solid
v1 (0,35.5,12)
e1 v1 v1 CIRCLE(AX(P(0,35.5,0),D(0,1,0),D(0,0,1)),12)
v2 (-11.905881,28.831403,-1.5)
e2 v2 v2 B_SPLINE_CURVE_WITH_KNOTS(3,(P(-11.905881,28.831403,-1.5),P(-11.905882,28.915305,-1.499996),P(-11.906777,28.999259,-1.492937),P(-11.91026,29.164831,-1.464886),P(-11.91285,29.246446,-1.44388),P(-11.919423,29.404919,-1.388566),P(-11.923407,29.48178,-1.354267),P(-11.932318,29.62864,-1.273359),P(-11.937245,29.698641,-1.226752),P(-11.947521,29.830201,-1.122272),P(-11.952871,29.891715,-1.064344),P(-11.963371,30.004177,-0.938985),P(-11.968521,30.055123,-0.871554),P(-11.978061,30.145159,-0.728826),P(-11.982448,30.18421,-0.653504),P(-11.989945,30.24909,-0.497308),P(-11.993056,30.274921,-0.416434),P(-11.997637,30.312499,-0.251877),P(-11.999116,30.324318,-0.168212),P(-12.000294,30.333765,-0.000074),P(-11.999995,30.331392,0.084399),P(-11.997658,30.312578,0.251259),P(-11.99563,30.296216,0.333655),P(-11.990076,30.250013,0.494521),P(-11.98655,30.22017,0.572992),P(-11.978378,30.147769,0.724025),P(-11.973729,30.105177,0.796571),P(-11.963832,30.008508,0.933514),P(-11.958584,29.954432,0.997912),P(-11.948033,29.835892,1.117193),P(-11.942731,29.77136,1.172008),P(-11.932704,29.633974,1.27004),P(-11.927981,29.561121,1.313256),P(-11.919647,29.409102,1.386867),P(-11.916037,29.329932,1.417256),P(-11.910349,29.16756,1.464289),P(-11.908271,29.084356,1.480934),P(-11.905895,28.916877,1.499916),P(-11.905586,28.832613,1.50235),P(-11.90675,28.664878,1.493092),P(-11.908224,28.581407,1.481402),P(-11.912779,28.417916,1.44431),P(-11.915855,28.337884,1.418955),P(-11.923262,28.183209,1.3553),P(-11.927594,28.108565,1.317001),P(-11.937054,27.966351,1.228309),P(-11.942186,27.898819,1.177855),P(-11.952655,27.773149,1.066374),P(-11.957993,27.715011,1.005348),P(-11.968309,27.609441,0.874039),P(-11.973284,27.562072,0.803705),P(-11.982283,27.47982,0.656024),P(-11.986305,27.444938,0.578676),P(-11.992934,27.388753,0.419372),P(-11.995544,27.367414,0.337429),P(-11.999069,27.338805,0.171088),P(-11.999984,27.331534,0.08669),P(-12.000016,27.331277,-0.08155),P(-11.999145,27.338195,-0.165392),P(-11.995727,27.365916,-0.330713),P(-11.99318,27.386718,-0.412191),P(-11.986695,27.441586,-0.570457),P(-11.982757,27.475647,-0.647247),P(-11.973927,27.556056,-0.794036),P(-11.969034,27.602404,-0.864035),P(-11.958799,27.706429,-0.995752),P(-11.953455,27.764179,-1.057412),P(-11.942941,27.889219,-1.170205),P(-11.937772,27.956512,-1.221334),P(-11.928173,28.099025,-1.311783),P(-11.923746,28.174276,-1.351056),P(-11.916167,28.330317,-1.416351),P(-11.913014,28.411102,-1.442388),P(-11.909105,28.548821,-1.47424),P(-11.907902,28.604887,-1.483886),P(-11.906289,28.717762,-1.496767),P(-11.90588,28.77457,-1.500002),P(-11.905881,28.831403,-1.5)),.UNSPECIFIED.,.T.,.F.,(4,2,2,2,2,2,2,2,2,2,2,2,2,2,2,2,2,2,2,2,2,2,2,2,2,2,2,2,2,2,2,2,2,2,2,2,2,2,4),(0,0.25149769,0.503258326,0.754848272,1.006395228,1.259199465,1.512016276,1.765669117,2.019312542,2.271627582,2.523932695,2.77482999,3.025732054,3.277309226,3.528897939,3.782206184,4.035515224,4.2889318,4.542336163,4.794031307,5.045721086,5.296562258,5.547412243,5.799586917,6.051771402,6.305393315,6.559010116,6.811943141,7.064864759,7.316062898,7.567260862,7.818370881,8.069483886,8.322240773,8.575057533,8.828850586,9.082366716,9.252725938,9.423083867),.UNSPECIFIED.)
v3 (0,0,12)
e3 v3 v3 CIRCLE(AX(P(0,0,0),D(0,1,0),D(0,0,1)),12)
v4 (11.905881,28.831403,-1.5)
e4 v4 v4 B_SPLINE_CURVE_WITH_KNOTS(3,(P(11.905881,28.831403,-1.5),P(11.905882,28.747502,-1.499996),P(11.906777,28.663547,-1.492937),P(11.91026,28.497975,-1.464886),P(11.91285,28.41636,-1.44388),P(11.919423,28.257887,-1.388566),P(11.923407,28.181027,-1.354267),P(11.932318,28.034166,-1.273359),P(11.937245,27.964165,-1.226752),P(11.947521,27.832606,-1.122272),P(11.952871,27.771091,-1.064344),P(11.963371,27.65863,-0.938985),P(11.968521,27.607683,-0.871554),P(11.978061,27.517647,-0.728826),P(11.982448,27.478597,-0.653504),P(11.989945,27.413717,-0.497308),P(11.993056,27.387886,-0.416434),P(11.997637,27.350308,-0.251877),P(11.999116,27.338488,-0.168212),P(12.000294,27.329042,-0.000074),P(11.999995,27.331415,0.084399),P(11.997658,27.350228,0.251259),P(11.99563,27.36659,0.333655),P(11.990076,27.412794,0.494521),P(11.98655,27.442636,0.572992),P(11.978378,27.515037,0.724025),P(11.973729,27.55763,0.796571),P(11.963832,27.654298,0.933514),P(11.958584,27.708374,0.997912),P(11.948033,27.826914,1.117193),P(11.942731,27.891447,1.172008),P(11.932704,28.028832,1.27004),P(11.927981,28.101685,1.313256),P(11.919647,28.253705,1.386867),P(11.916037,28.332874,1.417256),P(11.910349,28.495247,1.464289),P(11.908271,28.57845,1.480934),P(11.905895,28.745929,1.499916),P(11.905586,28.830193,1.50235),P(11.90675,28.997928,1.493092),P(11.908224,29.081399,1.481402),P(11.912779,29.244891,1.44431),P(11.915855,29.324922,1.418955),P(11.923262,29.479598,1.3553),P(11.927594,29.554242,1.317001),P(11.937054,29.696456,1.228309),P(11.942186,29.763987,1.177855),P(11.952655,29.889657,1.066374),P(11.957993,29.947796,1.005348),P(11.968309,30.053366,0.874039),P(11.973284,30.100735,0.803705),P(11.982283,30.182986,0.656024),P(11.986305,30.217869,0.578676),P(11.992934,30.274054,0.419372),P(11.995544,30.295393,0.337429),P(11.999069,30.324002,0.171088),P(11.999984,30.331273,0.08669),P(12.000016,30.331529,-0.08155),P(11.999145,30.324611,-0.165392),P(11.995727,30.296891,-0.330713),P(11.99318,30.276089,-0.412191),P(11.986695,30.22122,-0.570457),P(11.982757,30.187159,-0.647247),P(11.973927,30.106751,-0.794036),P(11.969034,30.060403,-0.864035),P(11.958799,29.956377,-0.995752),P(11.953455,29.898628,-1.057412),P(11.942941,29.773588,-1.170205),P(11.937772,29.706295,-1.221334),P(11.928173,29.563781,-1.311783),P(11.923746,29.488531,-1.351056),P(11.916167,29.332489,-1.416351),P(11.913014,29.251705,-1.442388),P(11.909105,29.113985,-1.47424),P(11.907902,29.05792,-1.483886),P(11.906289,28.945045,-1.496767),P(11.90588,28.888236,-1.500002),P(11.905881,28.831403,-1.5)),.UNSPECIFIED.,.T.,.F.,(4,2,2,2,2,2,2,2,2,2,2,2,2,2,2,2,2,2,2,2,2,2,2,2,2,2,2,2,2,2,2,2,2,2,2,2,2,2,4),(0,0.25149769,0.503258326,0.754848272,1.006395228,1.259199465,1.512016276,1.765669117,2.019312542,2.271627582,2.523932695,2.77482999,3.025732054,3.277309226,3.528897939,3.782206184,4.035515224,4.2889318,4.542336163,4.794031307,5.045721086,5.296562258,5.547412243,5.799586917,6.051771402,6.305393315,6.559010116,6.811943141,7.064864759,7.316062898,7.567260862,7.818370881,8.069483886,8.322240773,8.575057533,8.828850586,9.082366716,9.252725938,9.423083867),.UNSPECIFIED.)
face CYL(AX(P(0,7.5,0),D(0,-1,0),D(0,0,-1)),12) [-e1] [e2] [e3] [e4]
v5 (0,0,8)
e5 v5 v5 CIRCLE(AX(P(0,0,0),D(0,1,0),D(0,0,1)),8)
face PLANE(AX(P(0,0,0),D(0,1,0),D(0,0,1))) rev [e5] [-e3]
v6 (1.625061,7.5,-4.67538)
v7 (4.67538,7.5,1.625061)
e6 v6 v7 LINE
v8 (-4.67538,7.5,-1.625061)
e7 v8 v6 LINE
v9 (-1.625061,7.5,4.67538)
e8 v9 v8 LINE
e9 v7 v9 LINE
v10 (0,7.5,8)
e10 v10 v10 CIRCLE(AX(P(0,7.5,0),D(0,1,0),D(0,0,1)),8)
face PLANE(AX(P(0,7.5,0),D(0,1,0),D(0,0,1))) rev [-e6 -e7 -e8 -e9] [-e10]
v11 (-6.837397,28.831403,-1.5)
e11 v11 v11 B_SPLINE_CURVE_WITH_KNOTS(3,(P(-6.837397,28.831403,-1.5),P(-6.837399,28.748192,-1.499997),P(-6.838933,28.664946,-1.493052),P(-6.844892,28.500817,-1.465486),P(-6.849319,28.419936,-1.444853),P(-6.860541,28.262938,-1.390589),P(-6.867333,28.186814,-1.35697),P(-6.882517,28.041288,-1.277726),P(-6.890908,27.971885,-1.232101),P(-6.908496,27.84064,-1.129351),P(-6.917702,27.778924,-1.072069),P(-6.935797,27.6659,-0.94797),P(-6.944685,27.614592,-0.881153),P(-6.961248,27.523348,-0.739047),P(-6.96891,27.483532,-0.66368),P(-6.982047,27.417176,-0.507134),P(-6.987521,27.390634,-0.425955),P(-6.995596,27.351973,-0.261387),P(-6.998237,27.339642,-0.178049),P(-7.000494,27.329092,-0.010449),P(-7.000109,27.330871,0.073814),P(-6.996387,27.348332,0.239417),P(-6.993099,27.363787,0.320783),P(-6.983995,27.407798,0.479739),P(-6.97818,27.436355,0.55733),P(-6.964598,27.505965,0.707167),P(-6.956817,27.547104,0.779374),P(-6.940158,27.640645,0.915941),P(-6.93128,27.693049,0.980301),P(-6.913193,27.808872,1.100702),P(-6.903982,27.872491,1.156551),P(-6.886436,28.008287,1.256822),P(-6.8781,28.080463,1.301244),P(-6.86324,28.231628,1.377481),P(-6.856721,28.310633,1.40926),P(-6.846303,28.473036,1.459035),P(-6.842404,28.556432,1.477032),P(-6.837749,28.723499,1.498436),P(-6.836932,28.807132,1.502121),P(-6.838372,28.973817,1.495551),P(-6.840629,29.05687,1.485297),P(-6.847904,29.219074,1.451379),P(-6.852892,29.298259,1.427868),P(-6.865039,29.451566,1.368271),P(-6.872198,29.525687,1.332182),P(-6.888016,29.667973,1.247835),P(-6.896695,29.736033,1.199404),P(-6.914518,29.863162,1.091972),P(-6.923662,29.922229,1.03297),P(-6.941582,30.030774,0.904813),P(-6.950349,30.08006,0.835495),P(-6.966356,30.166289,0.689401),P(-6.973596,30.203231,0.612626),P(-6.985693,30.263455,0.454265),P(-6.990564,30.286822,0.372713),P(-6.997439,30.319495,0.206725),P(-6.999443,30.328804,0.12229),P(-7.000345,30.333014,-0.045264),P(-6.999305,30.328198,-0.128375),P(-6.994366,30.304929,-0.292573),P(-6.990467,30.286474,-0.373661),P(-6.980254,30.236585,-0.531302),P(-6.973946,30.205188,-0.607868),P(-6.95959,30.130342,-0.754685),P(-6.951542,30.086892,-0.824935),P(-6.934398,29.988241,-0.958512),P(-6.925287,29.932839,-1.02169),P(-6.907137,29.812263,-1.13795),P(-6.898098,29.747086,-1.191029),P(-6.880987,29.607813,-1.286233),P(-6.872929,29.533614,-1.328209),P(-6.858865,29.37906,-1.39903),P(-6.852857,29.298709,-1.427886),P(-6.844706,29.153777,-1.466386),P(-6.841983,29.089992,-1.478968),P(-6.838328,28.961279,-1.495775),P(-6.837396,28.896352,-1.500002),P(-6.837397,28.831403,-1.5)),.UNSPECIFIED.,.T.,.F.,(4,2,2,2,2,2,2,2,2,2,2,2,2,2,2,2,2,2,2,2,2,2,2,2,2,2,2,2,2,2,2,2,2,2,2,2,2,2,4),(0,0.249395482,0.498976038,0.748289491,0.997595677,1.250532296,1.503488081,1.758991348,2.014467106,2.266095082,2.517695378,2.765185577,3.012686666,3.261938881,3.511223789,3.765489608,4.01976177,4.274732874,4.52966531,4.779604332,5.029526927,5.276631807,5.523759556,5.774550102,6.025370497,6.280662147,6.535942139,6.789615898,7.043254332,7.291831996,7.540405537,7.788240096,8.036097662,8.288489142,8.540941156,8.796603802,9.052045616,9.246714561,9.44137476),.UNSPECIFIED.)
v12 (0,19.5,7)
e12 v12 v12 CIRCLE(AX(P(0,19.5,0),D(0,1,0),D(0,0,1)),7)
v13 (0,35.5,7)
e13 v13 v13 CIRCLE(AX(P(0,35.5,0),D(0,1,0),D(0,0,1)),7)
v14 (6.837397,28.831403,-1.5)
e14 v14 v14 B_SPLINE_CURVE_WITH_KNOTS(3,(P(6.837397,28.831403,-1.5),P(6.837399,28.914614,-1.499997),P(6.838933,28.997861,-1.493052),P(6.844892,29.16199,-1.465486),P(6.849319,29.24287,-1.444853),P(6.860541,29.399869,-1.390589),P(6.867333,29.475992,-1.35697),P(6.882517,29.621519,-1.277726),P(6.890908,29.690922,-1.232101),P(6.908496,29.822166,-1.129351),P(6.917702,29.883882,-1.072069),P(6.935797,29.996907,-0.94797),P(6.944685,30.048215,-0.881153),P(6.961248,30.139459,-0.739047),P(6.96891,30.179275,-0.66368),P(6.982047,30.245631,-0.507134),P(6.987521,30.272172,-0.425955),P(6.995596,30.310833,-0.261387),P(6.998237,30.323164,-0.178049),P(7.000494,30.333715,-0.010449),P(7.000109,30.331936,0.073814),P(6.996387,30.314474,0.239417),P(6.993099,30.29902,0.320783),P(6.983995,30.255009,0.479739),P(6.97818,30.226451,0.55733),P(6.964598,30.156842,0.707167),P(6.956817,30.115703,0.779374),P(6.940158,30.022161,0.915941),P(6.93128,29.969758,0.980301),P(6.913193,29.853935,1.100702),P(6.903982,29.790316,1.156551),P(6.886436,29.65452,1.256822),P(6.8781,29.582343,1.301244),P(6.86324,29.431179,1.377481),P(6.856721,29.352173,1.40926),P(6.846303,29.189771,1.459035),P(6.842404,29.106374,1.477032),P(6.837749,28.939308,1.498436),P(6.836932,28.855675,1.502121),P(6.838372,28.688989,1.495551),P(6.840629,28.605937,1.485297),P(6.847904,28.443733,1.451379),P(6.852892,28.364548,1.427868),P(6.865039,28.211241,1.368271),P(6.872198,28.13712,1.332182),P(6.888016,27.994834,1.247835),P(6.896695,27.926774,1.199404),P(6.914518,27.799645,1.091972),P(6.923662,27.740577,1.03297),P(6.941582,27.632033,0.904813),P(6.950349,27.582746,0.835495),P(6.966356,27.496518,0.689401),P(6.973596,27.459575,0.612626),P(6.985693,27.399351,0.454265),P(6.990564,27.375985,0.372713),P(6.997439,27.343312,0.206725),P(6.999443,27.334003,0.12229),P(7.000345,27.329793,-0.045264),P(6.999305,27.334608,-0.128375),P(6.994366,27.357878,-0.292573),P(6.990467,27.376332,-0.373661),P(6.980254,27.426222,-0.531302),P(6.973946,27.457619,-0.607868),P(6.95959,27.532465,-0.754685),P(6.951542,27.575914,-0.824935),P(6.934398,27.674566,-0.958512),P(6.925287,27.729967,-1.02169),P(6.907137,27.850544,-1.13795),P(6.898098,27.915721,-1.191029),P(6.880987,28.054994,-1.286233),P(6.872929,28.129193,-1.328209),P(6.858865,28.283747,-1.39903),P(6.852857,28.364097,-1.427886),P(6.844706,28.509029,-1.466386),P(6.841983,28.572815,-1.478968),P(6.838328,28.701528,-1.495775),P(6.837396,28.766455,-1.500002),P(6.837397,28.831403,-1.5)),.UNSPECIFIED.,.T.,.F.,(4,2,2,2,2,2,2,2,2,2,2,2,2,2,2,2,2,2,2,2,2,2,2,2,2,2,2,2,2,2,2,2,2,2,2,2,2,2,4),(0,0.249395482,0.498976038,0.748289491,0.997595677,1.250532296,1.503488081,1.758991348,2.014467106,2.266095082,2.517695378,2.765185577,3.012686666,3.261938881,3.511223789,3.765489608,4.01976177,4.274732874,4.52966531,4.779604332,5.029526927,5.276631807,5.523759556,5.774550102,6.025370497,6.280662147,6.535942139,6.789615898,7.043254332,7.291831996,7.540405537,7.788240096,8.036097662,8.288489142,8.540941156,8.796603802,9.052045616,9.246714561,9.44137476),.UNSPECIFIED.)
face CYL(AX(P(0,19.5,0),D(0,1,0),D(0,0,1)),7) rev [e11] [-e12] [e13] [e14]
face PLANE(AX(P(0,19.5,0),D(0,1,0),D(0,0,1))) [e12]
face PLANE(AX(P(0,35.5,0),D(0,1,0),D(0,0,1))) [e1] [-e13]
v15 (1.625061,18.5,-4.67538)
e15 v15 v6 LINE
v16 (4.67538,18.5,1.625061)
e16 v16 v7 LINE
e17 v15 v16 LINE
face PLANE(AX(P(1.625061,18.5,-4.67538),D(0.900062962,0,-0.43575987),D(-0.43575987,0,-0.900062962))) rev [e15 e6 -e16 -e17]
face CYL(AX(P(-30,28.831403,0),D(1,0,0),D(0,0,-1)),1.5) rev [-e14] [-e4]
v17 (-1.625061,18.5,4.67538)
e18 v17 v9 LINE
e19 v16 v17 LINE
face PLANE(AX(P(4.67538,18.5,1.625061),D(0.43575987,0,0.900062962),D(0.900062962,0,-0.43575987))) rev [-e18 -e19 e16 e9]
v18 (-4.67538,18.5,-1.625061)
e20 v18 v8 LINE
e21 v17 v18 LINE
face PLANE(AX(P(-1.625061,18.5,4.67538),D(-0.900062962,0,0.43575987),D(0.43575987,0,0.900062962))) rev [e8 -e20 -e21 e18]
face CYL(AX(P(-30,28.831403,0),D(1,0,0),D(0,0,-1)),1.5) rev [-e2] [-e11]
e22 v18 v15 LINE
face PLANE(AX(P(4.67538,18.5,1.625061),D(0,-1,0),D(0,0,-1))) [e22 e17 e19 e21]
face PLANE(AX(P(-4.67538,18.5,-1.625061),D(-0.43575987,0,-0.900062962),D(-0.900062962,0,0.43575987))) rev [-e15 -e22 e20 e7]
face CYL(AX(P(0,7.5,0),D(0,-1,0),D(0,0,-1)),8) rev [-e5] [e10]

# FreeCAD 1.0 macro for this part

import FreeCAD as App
import Part
import Sketcher

V = App.Vector

doc = App.newDocument("Part")
body = doc.addObject("PartDesign::Body", "Body")

# Sketch on XZ plane
sketch1 = body.newObject("Sketcher::SketchObject", "Sketch")
sketch1.AttachmentSupport = (doc.getObject("XZ_Plane"), [""])
sketch1.MapMode = "FlatFace"
sketch1.addGeometry([
    Part.Circle(V(0, 0, 0), V(0, 0, 1), 12),
    Part.Circle(V(0, 0, 0), V(0, 0, 1), 8),
], False)
sketch1.addConstraint([
    Sketcher.Constraint("Coincident", 0, 3, -1, 1),
    Sketcher.Constraint("Coincident", 1, 3, -1, 1),
    Sketcher.Constraint("Diameter", 0, 24.0),
    Sketcher.Constraint("Diameter", 1, 16.0),
])
pad1 = body.newObject("PartDesign::Pad", "Pad")
pad1.Profile = sketch1
pad1.Length = 7.5
pad1.Reversed = True

# Sketch on XZ plane
sketch2 = body.newObject("Sketcher::SketchObject", "Sketch001")
sketch2.AttachmentSupport = (doc.getObject("XZ_Plane"), [""])
sketch2.MapMode = "FlatFace"
sketch2.AttachmentOffset = App.Placement(V(0, 0, -7.5), App.Rotation())
sketch2.addGeometry(Part.Circle(V(0, 0, 0), V(0, 0, 1), 12), False)
sketch2.addConstraint([
    Sketcher.Constraint("Coincident", 0, 3, -1, 1),
    Sketcher.Constraint("Diameter", 0, 24.0),
])
pad2 = body.newObject("PartDesign::Pad", "Pad001")
pad2.Profile = sketch2
pad2.Length = 28
pad2.Reversed = True

# Sketch on XZ plane
sketch3 = body.newObject("Sketcher::SketchObject", "Sketch002")
sketch3.AttachmentSupport = (doc.getObject("XZ_Plane"), [""])
sketch3.MapMode = "FlatFace"
sketch3.AttachmentOffset = App.Placement(V(0, 0, -7.5), App.Rotation())
sketch3.addGeometry([
    Part.LineSegment(V(5, 2, 0), V(-2, 5, 0)),
    Part.LineSegment(V(-2, 5, 0), V(-5, -2, 0)),
    Part.LineSegment(V(-5, -2, 0), V(2, -5, 0)),
    Part.LineSegment(V(2, -5, 0), V(5, 2, 0)),
], False)
sketch3.addConstraint([
    Sketcher.Constraint("Coincident", 0, 2, 1, 1),
    Sketcher.Constraint("Coincident", 1, 2, 2, 1),
    Sketcher.Constraint("Coincident", 2, 2, 3, 1),
    Sketcher.Constraint("Coincident", 3, 2, 0, 1),
    Sketcher.Constraint("Symmetric", 0, 2, 2, 2, -1, 1),
    Sketcher.Constraint("Symmetric", 1, 2, 3, 2, -1, 1),
    Sketcher.Constraint("Perpendicular", 0, 1),
    Sketcher.Constraint("Equal", 0, 1),
    Sketcher.Constraint("Distance", 0, 7.0),
    Sketcher.Constraint("DistanceX", 0, 2, -1, 1, 1.625061),
])
pocket1 = body.newObject("PartDesign::Pocket", "Pocket")
pocket1.Profile = sketch3
pocket1.Length = 11

# Sketch on XZ plane
sketch4 = body.newObject("Sketcher::SketchObject", "Sketch003")
sketch4.AttachmentSupport = (doc.getObject("XZ_Plane"), [""])
sketch4.MapMode = "FlatFace"
sketch4.AttachmentOffset = App.Placement(V(0, 0, -35.5), App.Rotation())
sketch4.addGeometry(Part.Circle(V(0, 0, 0), V(0, 0, 1), 7), False)
sketch4.addConstraint([
    Sketcher.Constraint("Coincident", 0, 3, -1, 1),
    Sketcher.Constraint("Diameter", 0, 14.0),
])
pocket2 = body.newObject("PartDesign::Pocket", "Pocket001")
pocket2.Profile = sketch4
pocket2.Length = 16
pocket2.Reversed = True

# Sketch on YZ plane
sketch5 = body.newObject("Sketcher::SketchObject", "Sketch004")
sketch5.AttachmentSupport = (doc.getObject("YZ_Plane"), [""])
sketch5.MapMode = "FlatFace"
sketch5.addGeometry(Part.Circle(V(28.8, 0, 0), V(0, 0, 1), 1.5), False)
sketch5.addConstraint([
    Sketcher.Constraint("PointOnObject", 0, 3, -1),
    Sketcher.Constraint("Diameter", 0, 3.0),
    Sketcher.Constraint("DistanceX", -1, 1, 0, 3, 28.831403),
])
pocket3 = body.newObject("PartDesign::Pocket", "Pocket002")
pocket3.Profile = sketch5
pocket3.Length = 60
pocket3.Midplane = True

doc.recompute()
